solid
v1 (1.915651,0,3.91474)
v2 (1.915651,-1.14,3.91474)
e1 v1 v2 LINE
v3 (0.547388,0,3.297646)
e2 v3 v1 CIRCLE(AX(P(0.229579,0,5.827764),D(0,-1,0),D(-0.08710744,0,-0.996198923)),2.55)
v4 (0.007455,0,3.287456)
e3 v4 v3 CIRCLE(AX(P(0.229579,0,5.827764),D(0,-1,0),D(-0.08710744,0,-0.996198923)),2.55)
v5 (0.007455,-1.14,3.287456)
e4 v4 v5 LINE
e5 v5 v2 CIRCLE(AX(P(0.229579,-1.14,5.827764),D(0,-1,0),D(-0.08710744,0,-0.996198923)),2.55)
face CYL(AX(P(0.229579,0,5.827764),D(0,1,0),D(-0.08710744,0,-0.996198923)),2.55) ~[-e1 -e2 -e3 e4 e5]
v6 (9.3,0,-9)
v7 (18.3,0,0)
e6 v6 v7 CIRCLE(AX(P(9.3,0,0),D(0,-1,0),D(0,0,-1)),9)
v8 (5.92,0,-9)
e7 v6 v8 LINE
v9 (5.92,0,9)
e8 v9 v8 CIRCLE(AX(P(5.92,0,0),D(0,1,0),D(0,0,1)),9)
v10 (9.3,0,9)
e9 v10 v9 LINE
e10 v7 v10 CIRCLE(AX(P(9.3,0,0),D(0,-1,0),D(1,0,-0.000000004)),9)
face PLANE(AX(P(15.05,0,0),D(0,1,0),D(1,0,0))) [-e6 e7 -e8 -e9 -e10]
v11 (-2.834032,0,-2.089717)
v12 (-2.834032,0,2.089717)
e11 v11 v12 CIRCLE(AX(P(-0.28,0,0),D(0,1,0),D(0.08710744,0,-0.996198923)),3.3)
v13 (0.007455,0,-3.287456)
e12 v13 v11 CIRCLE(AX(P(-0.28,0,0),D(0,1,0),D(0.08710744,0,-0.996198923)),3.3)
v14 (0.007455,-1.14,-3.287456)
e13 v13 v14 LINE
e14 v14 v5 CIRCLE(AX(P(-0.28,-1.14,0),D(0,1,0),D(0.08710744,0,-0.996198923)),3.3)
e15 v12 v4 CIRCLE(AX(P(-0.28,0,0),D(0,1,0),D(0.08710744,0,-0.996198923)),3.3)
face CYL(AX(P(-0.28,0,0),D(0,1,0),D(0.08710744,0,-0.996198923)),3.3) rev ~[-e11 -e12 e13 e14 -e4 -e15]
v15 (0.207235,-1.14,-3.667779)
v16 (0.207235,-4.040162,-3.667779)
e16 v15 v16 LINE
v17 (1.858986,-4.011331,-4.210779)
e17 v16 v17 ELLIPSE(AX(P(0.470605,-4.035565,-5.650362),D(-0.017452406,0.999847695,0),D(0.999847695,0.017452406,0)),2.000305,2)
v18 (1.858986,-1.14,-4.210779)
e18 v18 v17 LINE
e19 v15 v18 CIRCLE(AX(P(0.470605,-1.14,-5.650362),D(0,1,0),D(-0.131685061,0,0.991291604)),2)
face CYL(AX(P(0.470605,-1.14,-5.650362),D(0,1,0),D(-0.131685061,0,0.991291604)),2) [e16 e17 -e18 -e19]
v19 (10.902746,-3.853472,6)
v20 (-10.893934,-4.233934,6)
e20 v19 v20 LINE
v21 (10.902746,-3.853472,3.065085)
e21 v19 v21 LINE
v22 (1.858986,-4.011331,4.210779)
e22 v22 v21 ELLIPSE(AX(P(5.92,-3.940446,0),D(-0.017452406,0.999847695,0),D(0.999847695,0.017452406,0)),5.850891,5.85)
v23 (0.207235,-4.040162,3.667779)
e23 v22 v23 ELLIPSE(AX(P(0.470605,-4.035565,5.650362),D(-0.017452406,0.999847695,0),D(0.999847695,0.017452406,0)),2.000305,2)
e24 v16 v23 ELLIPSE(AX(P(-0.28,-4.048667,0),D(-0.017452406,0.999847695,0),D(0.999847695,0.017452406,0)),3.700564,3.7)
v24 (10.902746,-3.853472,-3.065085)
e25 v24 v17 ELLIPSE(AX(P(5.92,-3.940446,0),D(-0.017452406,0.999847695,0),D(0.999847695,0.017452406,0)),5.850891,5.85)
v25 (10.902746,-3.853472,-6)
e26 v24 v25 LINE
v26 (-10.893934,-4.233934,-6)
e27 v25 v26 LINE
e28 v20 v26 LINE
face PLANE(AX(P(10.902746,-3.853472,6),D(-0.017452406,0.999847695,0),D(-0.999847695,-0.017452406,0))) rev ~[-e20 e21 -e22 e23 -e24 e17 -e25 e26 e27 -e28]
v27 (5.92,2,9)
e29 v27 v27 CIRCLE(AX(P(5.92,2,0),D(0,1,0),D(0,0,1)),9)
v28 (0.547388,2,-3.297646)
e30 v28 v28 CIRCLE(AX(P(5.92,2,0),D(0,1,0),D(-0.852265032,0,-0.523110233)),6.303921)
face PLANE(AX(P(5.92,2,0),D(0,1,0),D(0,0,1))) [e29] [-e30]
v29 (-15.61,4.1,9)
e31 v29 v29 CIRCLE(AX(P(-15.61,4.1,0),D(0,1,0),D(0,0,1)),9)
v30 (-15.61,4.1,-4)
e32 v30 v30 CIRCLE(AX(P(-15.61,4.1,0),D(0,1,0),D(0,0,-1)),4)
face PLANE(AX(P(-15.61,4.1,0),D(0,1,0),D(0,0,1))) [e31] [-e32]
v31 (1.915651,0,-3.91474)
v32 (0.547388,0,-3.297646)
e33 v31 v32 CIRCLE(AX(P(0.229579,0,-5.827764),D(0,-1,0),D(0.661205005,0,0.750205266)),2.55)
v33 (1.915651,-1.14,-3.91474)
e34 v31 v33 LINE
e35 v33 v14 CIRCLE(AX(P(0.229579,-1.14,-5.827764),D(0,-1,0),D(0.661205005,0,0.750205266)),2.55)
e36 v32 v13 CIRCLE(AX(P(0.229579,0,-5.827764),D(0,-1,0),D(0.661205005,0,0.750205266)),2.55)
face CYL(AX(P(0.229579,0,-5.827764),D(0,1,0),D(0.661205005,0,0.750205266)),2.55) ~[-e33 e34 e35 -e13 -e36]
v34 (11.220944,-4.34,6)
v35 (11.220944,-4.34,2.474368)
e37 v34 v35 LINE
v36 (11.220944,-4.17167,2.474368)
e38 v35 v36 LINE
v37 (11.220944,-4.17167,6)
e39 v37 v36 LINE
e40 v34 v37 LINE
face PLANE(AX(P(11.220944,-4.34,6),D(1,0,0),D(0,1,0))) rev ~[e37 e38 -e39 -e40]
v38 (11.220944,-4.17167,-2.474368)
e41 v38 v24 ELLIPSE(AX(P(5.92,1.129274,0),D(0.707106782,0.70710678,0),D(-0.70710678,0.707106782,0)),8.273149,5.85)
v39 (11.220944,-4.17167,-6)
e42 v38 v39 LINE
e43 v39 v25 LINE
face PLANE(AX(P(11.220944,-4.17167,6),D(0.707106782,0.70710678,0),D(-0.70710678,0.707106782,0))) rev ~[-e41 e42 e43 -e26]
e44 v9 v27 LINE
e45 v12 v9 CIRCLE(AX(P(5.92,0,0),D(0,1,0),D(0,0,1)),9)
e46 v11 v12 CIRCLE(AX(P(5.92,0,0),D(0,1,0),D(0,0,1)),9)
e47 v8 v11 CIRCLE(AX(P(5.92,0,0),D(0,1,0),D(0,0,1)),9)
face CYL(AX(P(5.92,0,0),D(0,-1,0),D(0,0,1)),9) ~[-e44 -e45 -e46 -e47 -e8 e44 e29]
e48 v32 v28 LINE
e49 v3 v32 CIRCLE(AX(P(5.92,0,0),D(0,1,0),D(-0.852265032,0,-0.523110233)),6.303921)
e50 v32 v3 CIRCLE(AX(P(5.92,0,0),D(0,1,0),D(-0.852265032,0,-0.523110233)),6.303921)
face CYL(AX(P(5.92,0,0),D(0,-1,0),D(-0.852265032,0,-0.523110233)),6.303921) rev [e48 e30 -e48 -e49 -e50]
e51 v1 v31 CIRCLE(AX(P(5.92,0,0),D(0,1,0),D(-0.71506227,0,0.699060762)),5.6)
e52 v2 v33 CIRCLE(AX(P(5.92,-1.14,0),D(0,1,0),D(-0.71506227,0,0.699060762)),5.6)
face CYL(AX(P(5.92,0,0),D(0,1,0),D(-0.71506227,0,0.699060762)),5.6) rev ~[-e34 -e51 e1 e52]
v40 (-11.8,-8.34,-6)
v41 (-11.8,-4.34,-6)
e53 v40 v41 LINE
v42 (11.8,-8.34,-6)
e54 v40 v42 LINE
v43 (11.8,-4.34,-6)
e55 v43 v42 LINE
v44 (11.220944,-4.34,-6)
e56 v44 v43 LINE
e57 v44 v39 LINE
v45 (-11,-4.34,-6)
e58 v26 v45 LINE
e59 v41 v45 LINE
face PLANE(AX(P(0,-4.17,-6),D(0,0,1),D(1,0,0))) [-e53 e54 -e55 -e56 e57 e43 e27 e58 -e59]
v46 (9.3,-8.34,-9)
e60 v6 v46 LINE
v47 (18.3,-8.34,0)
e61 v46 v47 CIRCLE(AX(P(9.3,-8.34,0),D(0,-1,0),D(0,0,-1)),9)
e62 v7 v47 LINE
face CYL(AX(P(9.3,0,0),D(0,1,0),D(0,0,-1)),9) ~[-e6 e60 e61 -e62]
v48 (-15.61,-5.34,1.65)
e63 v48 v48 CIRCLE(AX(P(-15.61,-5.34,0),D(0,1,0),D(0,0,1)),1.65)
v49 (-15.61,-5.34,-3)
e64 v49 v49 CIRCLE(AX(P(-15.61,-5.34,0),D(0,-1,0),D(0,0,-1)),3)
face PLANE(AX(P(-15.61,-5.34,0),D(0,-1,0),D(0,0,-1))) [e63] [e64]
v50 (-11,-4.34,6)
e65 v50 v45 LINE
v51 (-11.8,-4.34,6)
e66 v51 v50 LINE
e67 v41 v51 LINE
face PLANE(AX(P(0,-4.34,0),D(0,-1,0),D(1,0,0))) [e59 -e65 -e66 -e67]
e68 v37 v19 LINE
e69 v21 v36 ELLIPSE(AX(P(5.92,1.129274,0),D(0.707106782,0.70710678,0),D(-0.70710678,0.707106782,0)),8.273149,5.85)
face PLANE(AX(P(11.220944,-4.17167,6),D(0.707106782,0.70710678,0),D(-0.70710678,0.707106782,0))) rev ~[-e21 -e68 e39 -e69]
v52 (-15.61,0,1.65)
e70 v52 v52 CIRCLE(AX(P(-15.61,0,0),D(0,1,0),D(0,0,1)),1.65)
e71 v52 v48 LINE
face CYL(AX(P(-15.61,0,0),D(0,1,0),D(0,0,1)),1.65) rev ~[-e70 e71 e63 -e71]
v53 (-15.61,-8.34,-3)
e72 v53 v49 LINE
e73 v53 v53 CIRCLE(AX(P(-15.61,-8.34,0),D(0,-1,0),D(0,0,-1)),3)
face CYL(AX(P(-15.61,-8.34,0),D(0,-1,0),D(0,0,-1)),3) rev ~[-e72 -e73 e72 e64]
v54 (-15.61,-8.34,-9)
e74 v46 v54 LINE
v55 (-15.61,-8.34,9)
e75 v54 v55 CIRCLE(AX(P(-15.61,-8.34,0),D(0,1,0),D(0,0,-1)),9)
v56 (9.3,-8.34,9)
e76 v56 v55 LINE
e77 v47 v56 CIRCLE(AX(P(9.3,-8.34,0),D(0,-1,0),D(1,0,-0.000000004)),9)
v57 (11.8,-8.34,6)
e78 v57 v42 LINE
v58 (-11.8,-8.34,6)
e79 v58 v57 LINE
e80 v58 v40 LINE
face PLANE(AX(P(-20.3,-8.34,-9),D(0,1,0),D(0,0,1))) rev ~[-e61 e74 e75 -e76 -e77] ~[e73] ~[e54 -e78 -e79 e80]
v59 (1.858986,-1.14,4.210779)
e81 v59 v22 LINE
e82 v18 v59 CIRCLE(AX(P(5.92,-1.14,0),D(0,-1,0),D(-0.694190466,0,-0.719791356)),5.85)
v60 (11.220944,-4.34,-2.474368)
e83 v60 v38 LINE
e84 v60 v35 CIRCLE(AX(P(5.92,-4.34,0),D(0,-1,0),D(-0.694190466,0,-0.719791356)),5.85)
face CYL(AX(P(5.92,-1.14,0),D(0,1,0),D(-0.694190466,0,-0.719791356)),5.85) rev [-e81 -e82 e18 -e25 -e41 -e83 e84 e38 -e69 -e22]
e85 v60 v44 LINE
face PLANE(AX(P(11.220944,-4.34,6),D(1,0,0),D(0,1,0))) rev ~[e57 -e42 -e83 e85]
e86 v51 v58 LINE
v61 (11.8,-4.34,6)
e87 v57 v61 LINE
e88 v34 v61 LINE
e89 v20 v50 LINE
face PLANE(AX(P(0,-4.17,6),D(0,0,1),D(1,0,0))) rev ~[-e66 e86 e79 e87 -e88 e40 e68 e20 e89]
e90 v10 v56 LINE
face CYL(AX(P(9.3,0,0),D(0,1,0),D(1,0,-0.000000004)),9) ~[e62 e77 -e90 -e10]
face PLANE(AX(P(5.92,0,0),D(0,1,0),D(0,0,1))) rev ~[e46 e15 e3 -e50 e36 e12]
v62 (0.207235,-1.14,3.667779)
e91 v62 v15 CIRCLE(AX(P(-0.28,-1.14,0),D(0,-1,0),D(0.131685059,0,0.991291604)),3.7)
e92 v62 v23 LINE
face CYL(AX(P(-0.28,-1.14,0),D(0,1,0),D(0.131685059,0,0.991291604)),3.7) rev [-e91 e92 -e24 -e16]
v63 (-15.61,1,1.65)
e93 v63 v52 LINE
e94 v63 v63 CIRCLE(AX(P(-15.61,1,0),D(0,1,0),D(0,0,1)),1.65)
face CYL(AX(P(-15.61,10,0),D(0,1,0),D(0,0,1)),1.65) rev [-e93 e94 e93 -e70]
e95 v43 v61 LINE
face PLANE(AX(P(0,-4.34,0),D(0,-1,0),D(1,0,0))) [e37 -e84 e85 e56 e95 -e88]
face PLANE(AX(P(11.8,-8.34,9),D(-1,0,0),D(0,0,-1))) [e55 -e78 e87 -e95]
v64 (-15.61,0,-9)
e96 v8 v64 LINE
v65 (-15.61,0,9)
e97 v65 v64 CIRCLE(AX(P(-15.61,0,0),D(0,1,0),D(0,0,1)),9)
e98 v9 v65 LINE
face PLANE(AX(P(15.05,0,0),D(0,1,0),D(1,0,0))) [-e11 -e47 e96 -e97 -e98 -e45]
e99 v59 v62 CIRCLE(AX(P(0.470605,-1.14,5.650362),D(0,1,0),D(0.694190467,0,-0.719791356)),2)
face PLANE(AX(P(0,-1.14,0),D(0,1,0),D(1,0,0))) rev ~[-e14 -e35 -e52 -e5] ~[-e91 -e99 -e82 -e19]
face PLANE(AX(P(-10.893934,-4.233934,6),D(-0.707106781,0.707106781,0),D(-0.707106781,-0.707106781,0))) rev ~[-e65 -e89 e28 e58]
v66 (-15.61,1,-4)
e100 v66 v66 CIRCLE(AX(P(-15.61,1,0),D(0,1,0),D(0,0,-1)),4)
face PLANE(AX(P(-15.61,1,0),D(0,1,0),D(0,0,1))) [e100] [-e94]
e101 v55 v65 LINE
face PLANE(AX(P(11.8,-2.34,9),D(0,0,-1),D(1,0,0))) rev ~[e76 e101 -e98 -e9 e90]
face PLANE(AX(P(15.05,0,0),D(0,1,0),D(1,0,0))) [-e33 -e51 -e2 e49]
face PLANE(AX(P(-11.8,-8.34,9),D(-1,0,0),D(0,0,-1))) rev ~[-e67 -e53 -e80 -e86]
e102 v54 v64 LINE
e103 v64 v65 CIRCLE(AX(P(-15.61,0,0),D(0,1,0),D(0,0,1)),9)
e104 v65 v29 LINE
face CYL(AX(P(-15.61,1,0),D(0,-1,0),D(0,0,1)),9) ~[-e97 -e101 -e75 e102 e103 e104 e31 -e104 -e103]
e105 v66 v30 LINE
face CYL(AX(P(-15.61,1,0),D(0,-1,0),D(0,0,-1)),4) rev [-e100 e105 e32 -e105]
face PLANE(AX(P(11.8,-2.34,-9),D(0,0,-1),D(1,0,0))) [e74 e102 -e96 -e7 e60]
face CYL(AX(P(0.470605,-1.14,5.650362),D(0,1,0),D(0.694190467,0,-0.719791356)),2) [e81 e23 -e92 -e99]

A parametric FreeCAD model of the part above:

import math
import FreeCAD as App
import Part
import Sketcher

V = App.Vector
Q = App.Units.Quantity


def add_polygon(sketch, points):
    """Adds a closed chain of lines whose ends are joined by coincident constraints."""
    first, n = sketch.GeometryCount, len(points)
    for a, b in zip(points, points[1:] + points[:1]):
        sketch.addGeometry(Part.LineSegment(App.Vector(*a, 0), App.Vector(*b, 0)), False)
    for i in range(n):
        sketch.addConstraint(Sketcher.Constraint("Coincident", first + i, 2, first + (i + 1) % n, 1))

doc = App.newDocument("Part")
params = doc.addObject("Spreadsheet::Sheet", "Params")
for row, (alias, value) in enumerate([
    ("sketch1_radius", "3.3 mm"),
    ("sketch1_radius2", "5.6 mm"),
    ("sketch1_height", "12 mm"),
    ("sketch1_radius3", "2.55 mm"),
    ("sketch1_width", "23.6 mm"),
    ("pad1_length", "1.14 mm"),
    ("sketch2_radius", "2 mm"),
    ("sketch2_radius2", "3.7 mm"),
    ("sketch2_height", "12 mm"),
    ("sketch2_radius3", "5.85 mm"),
    ("sketch2_width", "23.6 mm"),
    ("pad2_length", "3.2 mm"),
    ("sketch3_length", "21.8 mm"),
    ("sketch3_length2", "0.15 mm"),
    ("sketch3_length3", "0.45 mm"),
    ("sketch4_width", "23.6 mm"),
    ("sketch4_height", "8.34 mm"),
    ("pad3_length", "3 mm"),
    ("sketch5_width", "23.6 mm"),
    ("sketch5_height", "8.34 mm"),
    ("pad4_length", "3 mm"),
    ("sketch6_height", "18 mm"),
    ("sketch6_width", "4.5 mm"),
    ("pad5_length", "6 mm"),
    ("sketch7_width", "6 mm"),
    ("sketch7_height", "18 mm"),
    ("pad6_length", "4 mm"),
    ("sketch8_height", "18 mm"),
    ("sketch8_width", "8.5 mm"),
    ("pad7_length", "2.34 mm"),
    ("sketch9_width", "6 mm"),
    ("sketch9_height", "18 mm"),
    ("pad8_length", "2 mm"),
    ("sketch10_height", "18 mm"),
    ("sketch10_width", "8.34 mm"),
    ("pad9_length", "8 mm"),
    ("sketch11_height", "18 mm"),
    ("sketch11_width", "6.5 mm"),
    ("pad10_length", "2.34 mm"),
    ("sketch12_diameter", "3.3 mm"),
    ("pocket2_length", "8.34 mm"),
    ("sketch13_diameter", "6 mm"),
    ("pocket3_length", "3 mm"),
    ("sketch14_diameter", "18 mm"),
    ("pad11_length", "2 mm"),
    ("sketch15_diameter", "18 mm"),
    ("pad12_length", "1 mm"),
    ("sketch16_diameter", "3.3 mm"),
    ("pocket4_length", "10 mm"),
    ("sketch17_radius", "9 mm"),
    ("sketch17_width", "12.69 mm"),
    ("pocket5_length", "8.34 mm"),
    ("sketch18_radius", "9 mm"),
    ("pocket6_length", "8.34 mm"),
    ("sketch19_diameter", "18 mm"),
    ("sketch19_diameter2", "8 mm"),
    ("pad13_length", "3.1 mm"),
], start=1):
    params.set(f"A{row}", alias)
    params.set(f"B{row}", "=" + value)
    params.setAlias(f"B{row}", alias)

body = doc.addObject("PartDesign::Body", "Body")

# Sketch on XZ plane
sketch1 = doc.addObject("Sketcher::SketchObject", "Sketch")
body.addObject(sketch1)
sketch1.AttachmentSupport = (doc.XZ_Plane, [""])
sketch1.MapMode = "FlatFace"
add_polygon(sketch1, [(-11.8, -6), (-11.8, 6), (11.8, 6), (11.8, -6)])  # lines 0-3
sketch1.addGeometry(Part.ArcOfCircle(Part.Circle(V(-0.3, 0, 0), V(0, 0, 1), 3.3), math.radians(85), math.radians(275)), False)  # 4
sketch1.addGeometry(Part.ArcOfCircle(Part.Circle(V(0.2, -5.8, 0), V(0, 0, 1), 2.5), math.radians(49), math.radians(95)), False)  # 5
sketch1.addGeometry(Part.ArcOfCircle(Part.Circle(V(5.9, 0, 0), V(0, 0, 1), 5.6), math.radians(-136), math.radians(136)), False)  # 6
sketch1.addGeometry(Part.ArcOfCircle(Part.Circle(V(0.2, 5.8, 0), V(0, 0, 1), 2.5), math.radians(-95), math.radians(-49)), False)  # 7
sketch1.addConstraint([
    Sketcher.Constraint("Tangent", 4, 2, 5, 2),
    Sketcher.Constraint("Coincident", 5, 1, 6, 1),
    Sketcher.Constraint("Coincident", 6, 2, 7, 2),
    Sketcher.Constraint("Tangent", 7, 1, 4, 1),
    Sketcher.Constraint("Vertical", 0),
    Sketcher.Constraint("Horizontal", 1),
    Sketcher.Constraint("Vertical", 2),
    Sketcher.Constraint("Horizontal", 3),
    Sketcher.Constraint("Equal", 5, 7),
    Sketcher.Constraint("Symmetric", 0, 2, 2, 2, -1, 1),
    Sketcher.Constraint("Symmetric", 5, 3, 7, 3, -1),
    Sketcher.Constraint("PointOnObject", 6, 3, -1),
    Sketcher.Constraint("Radius", 4, Q("3.3 mm")),
    Sketcher.Constraint("Radius", 6, Q("5.6 mm")),
    Sketcher.Constraint("DistanceY", 0, 1, 0, 2, Q("12 mm")),
    Sketcher.Constraint("Radius", 5, Q("2.55 mm")),
    Sketcher.Constraint("DistanceX", 1, 1, 1, 2, Q("23.6 mm")),
    Sketcher.Constraint("DistanceX", 4, 3, 6, 3, Q("6.2 mm")),
    Sketcher.Constraint("DistanceX", 4, 3, -1, 1, Q("0.28 mm")),
    Sketcher.Constraint("DistanceX", -1, 1, 5, 3, Q("0.229579 mm")),
])
sketch1.setExpression("Constraints[16]", "Params.sketch1_radius")
sketch1.setExpression("Constraints[17]", "Params.sketch1_radius2")
sketch1.setExpression("Constraints[18]", "Params.sketch1_height")
sketch1.setExpression("Constraints[19]", "Params.sketch1_radius3")
sketch1.setExpression("Constraints[20]", "Params.sketch1_width")
pad1 = doc.addObject("PartDesign::Pad", "Pad")
body.addObject(pad1)
pad1.Profile = sketch1
pad1.setExpression("Length", "Params.pad1_length")

# Sketch on XZ plane
sketch2 = doc.addObject("Sketcher::SketchObject", "Sketch001")
body.addObject(sketch2)
sketch2.AttachmentSupport = (doc.XZ_Plane, [""])
sketch2.MapMode = "FlatFace"
sketch2.AttachmentOffset = App.Placement(V(0, 0, 1.14), App.Rotation())
add_polygon(sketch2, [(-11.8, 6), (-11.8, -6), (11.8, -6), (11.8, 6)])  # lines 0-3
sketch2.addGeometry(Part.ArcOfCircle(Part.Circle(V(5.9, 0, 0), V(0, 0, 1), 5.8), math.radians(-134), math.radians(134)), False)  # 4
sketch2.addGeometry(Part.ArcOfCircle(Part.Circle(V(0.5, -5.7, 0), V(0, 0, 1), 2), math.radians(46), math.radians(98)), False)  # 5
sketch2.addGeometry(Part.ArcOfCircle(Part.Circle(V(-0.3, 0, 0), V(0, 0, 1), 3.7), math.radians(82), math.radians(278)), False)  # 6
sketch2.addGeometry(Part.ArcOfCircle(Part.Circle(V(0.5, 5.7, 0), V(0, 0, 1), 2), math.radians(-98), math.radians(-46)), False)  # 7
sketch2.addConstraint([
    Sketcher.Constraint("Tangent", 4, 1, 5, 1),
    Sketcher.Constraint("Tangent", 5, 2, 6, 2),
    Sketcher.Constraint("Tangent", 6, 1, 7, 1),
    Sketcher.Constraint("Tangent", 7, 2, 4, 2),
    Sketcher.Constraint("Vertical", 0),
    Sketcher.Constraint("Horizontal", 1),
    Sketcher.Constraint("Vertical", 2),
    Sketcher.Constraint("Horizontal", 3),
    Sketcher.Constraint("Equal", 5, 7),
    Sketcher.Constraint("Symmetric", 0, 2, 2, 2, -1, 1),
    Sketcher.Constraint("Symmetric", 5, 3, 7, 3, -1),
    Sketcher.Constraint("Radius", 5, Q("2 mm")),
    Sketcher.Constraint("Radius", 6, Q("3.7 mm")),
    Sketcher.Constraint("DistanceY", 0, 2, 0, 1, Q("12 mm")),
    Sketcher.Constraint("Radius", 4, Q("5.85 mm")),
    Sketcher.Constraint("DistanceX", 1, 1, 1, 2, Q("23.6 mm")),
    Sketcher.Constraint("DistanceX", 6, 3, 4, 3, Q("6.2 mm")),
    Sketcher.Constraint("DistanceX", -1, 1, 4, 3, Q("5.92 mm")),
])
sketch2.setExpression("Constraints[15]", "Params.sketch2_radius")
sketch2.setExpression("Constraints[16]", "Params.sketch2_radius2")
sketch2.setExpression("Constraints[17]", "Params.sketch2_height")
sketch2.setExpression("Constraints[18]", "Params.sketch2_radius3")
sketch2.setExpression("Constraints[19]", "Params.sketch2_width")
pad2 = doc.addObject("PartDesign::Pad", "Pad001")
body.addObject(pad2)
pad2.Profile = sketch2
pad2.setExpression("Length", "Params.pad2_length")

# Sketch on XY plane
sketch3 = doc.addObject("Sketcher::SketchObject", "Sketch002")
body.addObject(sketch3)
sketch3.AttachmentSupport = (doc.XY_Plane, [""])
sketch3.MapMode = "FlatFace"
sketch3.AttachmentOffset = App.Placement(V(0, 0, 6), App.Rotation())
add_polygon(sketch3, [(-10.89, -4.23), (-11, -4.34), (11.22, -4.34), (11.22, -4.17), (10.9, -3.85)])  # lines 0-4
sketch3.addConstraint([
    Sketcher.Constraint("Horizontal", 1),
    Sketcher.Constraint("Vertical", 2),
    Sketcher.Constraint("Perpendicular", 0, 3),
    Sketcher.Constraint("Angle", 0, Q("-135 deg")),
    Sketcher.Constraint("Angle", 4, Q("-179 deg")),
    Sketcher.Constraint("DistanceX", 0, 2, -1, 1, Q("11 mm")),
    Sketcher.Constraint("Distance", 4, Q("21.8 mm")),
    Sketcher.Constraint("Distance", 0, Q("0.15 mm")),
    Sketcher.Constraint("Distance", 3, Q("0.45 mm")),
    Sketcher.Constraint("DistanceY", 0, 2, -1, 1, Q("4.34 mm")),
])
sketch3.setExpression("Constraints[11]", "Params.sketch3_length")
sketch3.setExpression("Constraints[12]", "Params.sketch3_length2")
sketch3.setExpression("Constraints[13]", "Params.sketch3_length3")
pocket1 = doc.addObject("PartDesign::Pocket", "Pocket")
body.addObject(pocket1)
pocket1.Profile = sketch3
pocket1.Type = "ThroughAll"

# Sketch on XY plane
sketch4 = doc.addObject("Sketcher::SketchObject", "Sketch003")
body.addObject(sketch4)
sketch4.AttachmentSupport = (doc.XY_Plane, [""])
sketch4.MapMode = "FlatFace"
sketch4.AttachmentOffset = App.Placement(V(0, 0, 6), App.Rotation())
add_polygon(sketch4, [(-12, -8), (12, -8), (12, 0), (-12, 0)])  # lines 0-3
sketch4.addConstraint([
    Sketcher.Constraint("Horizontal", 0),
    Sketcher.Constraint("Vertical", 1),
    Sketcher.Constraint("Horizontal", 2),
    Sketcher.Constraint("Vertical", 3),
    Sketcher.Constraint("Symmetric", 1, 2, 2, 2, -1, 1),
    Sketcher.Constraint("DistanceX", 0, 1, 0, 2, Q("23.6 mm")),
    Sketcher.Constraint("DistanceY", 1, 1, 1, 2, Q("8.34 mm")),
])
sketch4.setExpression("Constraints[9]", "Params.sketch4_width")
sketch4.setExpression("Constraints[10]", "Params.sketch4_height")
pad3 = doc.addObject("PartDesign::Pad", "Pad002")
body.addObject(pad3)
pad3.Profile = sketch4
pad3.setExpression("Length", "Params.pad3_length")

# Sketch on XY plane
sketch5 = doc.addObject("Sketcher::SketchObject", "Sketch004")
body.addObject(sketch5)
sketch5.AttachmentSupport = (doc.XY_Plane, [""])
sketch5.MapMode = "FlatFace"
sketch5.AttachmentOffset = App.Placement(V(0, 0, -6), App.Rotation())
add_polygon(sketch5, [(12, -8), (-12, -8), (-12, 0), (12, 0)])  # lines 0-3
sketch5.addConstraint([
    Sketcher.Constraint("Horizontal", 0),
    Sketcher.Constraint("Vertical", 1),
    Sketcher.Constraint("Horizontal", 2),
    Sketcher.Constraint("Vertical", 3),
    Sketcher.Constraint("Symmetric", 1, 2, 2, 2, -1, 1),
    Sketcher.Constraint("DistanceX", 0, 2, 0, 1, Q("23.6 mm")),
    Sketcher.Constraint("DistanceY", 1, 1, 1, 2, Q("8.34 mm")),
])
sketch5.setExpression("Constraints[9]", "Params.sketch5_width")
sketch5.setExpression("Constraints[10]", "Params.sketch5_height")
pad4 = doc.addObject("PartDesign::Pad", "Pad003")
body.addObject(pad4)
pad4.Profile = sketch5
pad4.setExpression("Length", "Params.pad4_length")
pad4.Reversed = True

# Sketch on XZ plane
sketch6 = doc.addObject("Sketcher::SketchObject", "Sketch005")
body.addObject(sketch6)
sketch6.AttachmentSupport = (doc.XZ_Plane, [""])
sketch6.MapMode = "FlatFace"
sketch6.AttachmentOffset = App.Placement(V(0, 0, 8.34), App.Rotation())
add_polygon(sketch6, [(11.8, -9), (11.8, 9), (16.3, 9), (16.3, -9)])  # lines 0-3
add_polygon(sketch6, [(-16.3, -9), (-16.3, 9), (-11.8, 9), (-11.8, -9)])  # lines 4-7
sketch6.addConstraint([
    Sketcher.Constraint("Vertical", 0),
    Sketcher.Constraint("Horizontal", 1),
    Sketcher.Constraint("Vertical", 2),
    Sketcher.Constraint("Horizontal", 3),
    Sketcher.Constraint("Vertical", 4),
    Sketcher.Constraint("Horizontal", 5),
    Sketcher.Constraint("Vertical", 6),
    Sketcher.Constraint("Horizontal", 7),
    Sketcher.Constraint("Symmetric", 2, 2, 4, 2, -1, 1),
    Sketcher.Constraint("Symmetric", 0, 2, 6, 2, -1, 1),
    Sketcher.Constraint("Horizontal", 1, 2, 4, 2),
    Sketcher.Constraint("DistanceY", 0, 1, 0, 2, Q("18 mm")),
    Sketcher.Constraint("DistanceX", 1, 1, 1, 2, Q("4.5 mm")),
    Sketcher.Constraint("DistanceX", -1, 1, 0, 2, Q("11.8 mm")),
])
sketch6.setExpression("Constraints[19]", "Params.sketch6_height")
sketch6.setExpression("Constraints[20]", "Params.sketch6_width")
pad5 = doc.addObject("PartDesign::Pad", "Pad004")
body.addObject(pad5)
pad5.Profile = sketch6
pad5.setExpression("Length", "Params.pad5_length")
pad5.Reversed = True

# Sketch on YZ plane
sketch7 = doc.addObject("Sketcher::SketchObject", "Sketch006")
body.addObject(sketch7)
sketch7.AttachmentSupport = (doc.YZ_Plane, [""])
sketch7.MapMode = "FlatFace"
sketch7.AttachmentOffset = App.Placement(V(0, 0, -16.3), App.Rotation())
add_polygon(sketch7, [(-2, -9), (-8, -9), (-8, 9), (-2, 9)])  # lines 0-3
sketch7.addConstraint([
    Sketcher.Constraint("Horizontal", 0),
    Sketcher.Constraint("Vertical", 1),
    Sketcher.Constraint("Horizontal", 2),
    Sketcher.Constraint("Vertical", 3),
    Sketcher.Constraint("DistanceX", 0, 2, 0, 1, Q("6 mm")),
    Sketcher.Constraint("DistanceY", 1, 1, 1, 2, Q("18 mm")),
    Sketcher.Constraint("DistanceY", 0, 2, -1, 1, Q("9 mm")),
    Sketcher.Constraint("DistanceX", 0, 2, -1, 1, Q("8.34 mm")),
])
sketch7.setExpression("Constraints[8]", "Params.sketch7_width")
sketch7.setExpression("Constraints[9]", "Params.sketch7_height")
pad6 = doc.addObject("PartDesign::Pad", "Pad005")
body.addObject(pad6)
pad6.Profile = sketch7
pad6.setExpression("Length", "Params.pad6_length")
pad6.Reversed = True

# Sketch on XZ plane
sketch8 = doc.addObject("Sketcher::SketchObject", "Sketch007")
body.addObject(sketch8)
sketch8.AttachmentSupport = (doc.XZ_Plane, [""])
sketch8.MapMode = "FlatFace"
sketch8.AttachmentOffset = App.Placement(V(0, 0, 2.34), App.Rotation())
add_polygon(sketch8, [(-20, -9), (-20, 9), (-12, 9), (-12, -9)])  # lines 0-3
sketch8.addConstraint([
    Sketcher.Constraint("Vertical", 0),
    Sketcher.Constraint("Horizontal", 1),
    Sketcher.Constraint("Vertical", 2),
    Sketcher.Constraint("Horizontal", 3),
    Sketcher.Constraint("DistanceY", 0, 1, 0, 2, Q("18 mm")),
    Sketcher.Constraint("DistanceX", 1, 1, 1, 2, Q("8.5 mm")),
    Sketcher.Constraint("DistanceY", -1, 1, 0, 2, Q("9 mm")),
    Sketcher.Constraint("DistanceX", 0, 2, -1, 1, Q("20.3 mm")),
])
sketch8.setExpression("Constraints[8]", "Params.sketch8_height")
sketch8.setExpression("Constraints[9]", "Params.sketch8_width")
pad7 = doc.addObject("PartDesign::Pad", "Pad006")
body.addObject(pad7)
pad7.Profile = sketch8
pad7.setExpression("Length", "Params.pad7_length")
pad7.Reversed = True

# Sketch on YZ plane
sketch9 = doc.addObject("Sketcher::SketchObject", "Sketch008")
body.addObject(sketch9)
sketch9.AttachmentSupport = (doc.YZ_Plane, [""])
sketch9.MapMode = "FlatFace"
sketch9.AttachmentOffset = App.Placement(V(0, 0, 16.3), App.Rotation())
add_polygon(sketch9, [(-2, 9), (-8, 9), (-8, -9), (-2, -9)])  # lines 0-3
sketch9.addConstraint([
    Sketcher.Constraint("Horizontal", 0),
    Sketcher.Constraint("Vertical", 1),
    Sketcher.Constraint("Horizontal", 2),
    Sketcher.Constraint("Vertical", 3),
    Sketcher.Constraint("DistanceX", 0, 2, 0, 1, Q("6 mm")),
    Sketcher.Constraint("DistanceY", 1, 2, 1, 1, Q("18 mm")),
    Sketcher.Constraint("DistanceY", -1, 1, 0, 2, Q("9 mm")),
    Sketcher.Constraint("DistanceX", 0, 2, -1, 1, Q("8.34 mm")),
])
sketch9.setExpression("Constraints[8]", "Params.sketch9_width")
sketch9.setExpression("Constraints[9]", "Params.sketch9_height")
pad8 = doc.addObject("PartDesign::Pad", "Pad007")
body.addObject(pad8)
pad8.Profile = sketch9
pad8.setExpression("Length", "Params.pad8_length")

# Sketch on YZ plane
sketch10 = doc.addObject("Sketcher::SketchObject", "Sketch009")
body.addObject(sketch10)
sketch10.AttachmentSupport = (doc.YZ_Plane, [""])
sketch10.MapMode = "FlatFace"
sketch10.AttachmentOffset = App.Placement(V(0, 0, -20.3), App.Rotation())
add_polygon(sketch10, [(0, -9), (-8, -9), (-8, 9), (0, 9)])  # lines 0-3
sketch10.addConstraint([
    Sketcher.Constraint("Horizontal", 0),
    Sketcher.Constraint("Vertical", 1),
    Sketcher.Constraint("Horizontal", 2),
    Sketcher.Constraint("Vertical", 3),
    Sketcher.Constraint("Symmetric", 2, 2, 3, 2, -1, 1),
    Sketcher.Constraint("DistanceY", 1, 1, 1, 2, Q("18 mm")),
    Sketcher.Constraint("DistanceX", 0, 2, 0, 1, Q("8.34 mm")),
])
sketch10.setExpression("Constraints[9]", "Params.sketch10_height")
sketch10.setExpression("Constraints[10]", "Params.sketch10_width")
pad9 = doc.addObject("PartDesign::Pad", "Pad008")
body.addObject(pad9)
pad9.Profile = sketch10
pad9.setExpression("Length", "Params.pad9_length")
pad9.Reversed = True

# Sketch on XZ plane
sketch11 = doc.addObject("Sketcher::SketchObject", "Sketch010")
body.addObject(sketch11)
sketch11.AttachmentSupport = (doc.XZ_Plane, [""])
sketch11.MapMode = "FlatFace"
sketch11.AttachmentOffset = App.Placement(V(0, 0, 2.34), App.Rotation())
add_polygon(sketch11, [(12, -9), (12, 9), (18, 9), (18, -9)])  # lines 0-3
sketch11.addConstraint([
    Sketcher.Constraint("Vertical", 0),
    Sketcher.Constraint("Horizontal", 1),
    Sketcher.Constraint("Vertical", 2),
    Sketcher.Constraint("Horizontal", 3),
    Sketcher.Constraint("DistanceY", 0, 1, 0, 2, Q("18 mm")),
    Sketcher.Constraint("DistanceX", 1, 1, 1, 2, Q("6.5 mm")),
    Sketcher.Constraint("DistanceY", -1, 1, 0, 2, Q("9 mm")),
    Sketcher.Constraint("DistanceX", -1, 1, 0, 2, Q("11.8 mm")),
])
sketch11.setExpression("Constraints[8]", "Params.sketch11_height")
sketch11.setExpression("Constraints[9]", "Params.sketch11_width")
pad10 = doc.addObject("PartDesign::Pad", "Pad009")
body.addObject(pad10)
pad10.Profile = sketch11
pad10.setExpression("Length", "Params.pad10_length")
pad10.Reversed = True

# Sketch on XZ plane
sketch12 = doc.addObject("Sketcher::SketchObject", "Sketch011")
body.addObject(sketch12)
sketch12.AttachmentSupport = (doc.XZ_Plane, [""])
sketch12.MapMode = "FlatFace"
sketch12.addGeometry(Part.Circle(V(-15.6, 0, 0), V(0, 0, 1), 1.6), False)
sketch12.addConstraint([
    Sketcher.Constraint("PointOnObject", 0, 3, -1),
    Sketcher.Constraint("Diameter", 0, Q("3.3 mm")),
    Sketcher.Constraint("DistanceX", 0, 3, -1, 1, Q("15.61 mm")),
])
sketch12.setExpression("Constraints[1]", "Params.sketch12_diameter")
pocket2 = doc.addObject("PartDesign::Pocket", "Pocket001")
body.addObject(pocket2)
pocket2.Profile = sketch12
pocket2.setExpression("Length", "Params.pocket2_length")
pocket2.Reversed = True

# Sketch on XZ plane
sketch13 = doc.addObject("Sketcher::SketchObject", "Sketch012")
body.addObject(sketch13)
sketch13.AttachmentSupport = (doc.XZ_Plane, [""])
sketch13.MapMode = "FlatFace"
sketch13.AttachmentOffset = App.Placement(V(0, 0, 8.34), App.Rotation())
sketch13.addGeometry(Part.Circle(V(-15.6, 0, 0), V(0, 0, 1), 3), False)
sketch13.addConstraint([
    Sketcher.Constraint("PointOnObject", 0, 3, -1),
    Sketcher.Constraint("Diameter", 0, Q("6 mm")),
    Sketcher.Constraint("DistanceX", 0, 3, -1, 1, Q("15.61 mm")),
])
sketch13.setExpression("Constraints[1]", "Params.sketch13_diameter")
pocket3 = doc.addObject("PartDesign::Pocket", "Pocket002")
body.addObject(pocket3)
pocket3.Profile = sketch13
pocket3.setExpression("Length", "Params.pocket3_length")

# Sketch on XZ plane
sketch14 = doc.addObject("Sketcher::SketchObject", "Sketch013")
body.addObject(sketch14)
sketch14.AttachmentSupport = (doc.XZ_Plane, [""])
sketch14.MapMode = "FlatFace"
sketch14.addGeometry([
    Part.Circle(V(6, 0, 0), V(0, 0, 1), 9),
    Part.Circle(V(6, 0, 0), V(0, 0, 1), 6),
], False)
sketch14.addConstraint([
    Sketcher.Constraint("Coincident", 1, 3, 0, 3),
    Sketcher.Constraint("PointOnObject", 0, 3, -1),
    Sketcher.Constraint("Diameter", 0, Q("18 mm")),
    Sketcher.Constraint("DistanceX", -1, 1, 0, 3, Q("5.92 mm")),
    Sketcher.Constraint("Diameter", 1, Q("12.607843 mm")),
])
sketch14.setExpression("Constraints[2]", "Params.sketch14_diameter")
pad11 = doc.addObject("PartDesign::Pad", "Pad010")
body.addObject(pad11)
pad11.Profile = sketch14
pad11.setExpression("Length", "Params.pad11_length")
pad11.Reversed = True

# Sketch on XZ plane
sketch15 = doc.addObject("Sketcher::SketchObject", "Sketch014")
body.addObject(sketch15)
sketch15.AttachmentSupport = (doc.XZ_Plane, [""])
sketch15.MapMode = "FlatFace"
sketch15.addGeometry(Part.Circle(V(-16, 0, 0), V(0, 0, 1), 9), False)
sketch15.addConstraint([
    Sketcher.Constraint("PointOnObject", 0, 3, -1),
    Sketcher.Constraint("Diameter", 0, Q("18 mm")),
    Sketcher.Constraint("DistanceX", 0, 3, -1, 1, Q("15.61 mm")),
])
sketch15.setExpression("Constraints[1]", "Params.sketch15_diameter")
pad12 = doc.addObject("PartDesign::Pad", "Pad011")
body.addObject(pad12)
pad12.Profile = sketch15
pad12.setExpression("Length", "Params.pad12_length")
pad12.Reversed = True

# Sketch on XZ plane
sketch16 = doc.addObject("Sketcher::SketchObject", "Sketch015")
body.addObject(sketch16)
sketch16.AttachmentSupport = (doc.XZ_Plane, [""])
sketch16.MapMode = "FlatFace"
sketch16.AttachmentOffset = App.Placement(V(0, 0, -10), App.Rotation())
sketch16.addGeometry(Part.Circle(V(-15.6, 0, 0), V(0, 0, 1), 1.6), False)
sketch16.addConstraint([
    Sketcher.Constraint("PointOnObject", 0, 3, -1),
    Sketcher.Constraint("Diameter", 0, Q("3.3 mm")),
    Sketcher.Constraint("DistanceX", 0, 3, -1, 1, Q("15.61 mm")),
])
sketch16.setExpression("Constraints[1]", "Params.sketch16_diameter")
pocket4 = doc.addObject("PartDesign::Pocket", "Pocket003")
body.addObject(pocket4)
pocket4.Profile = sketch16
pocket4.setExpression("Length", "Params.pocket4_length")
pocket4.Reversed = True

# Sketch on XZ plane
sketch17 = doc.addObject("Sketcher::SketchObject", "Sketch016")
body.addObject(sketch17)
sketch17.AttachmentSupport = (doc.XZ_Plane, [""])
sketch17.MapMode = "FlatFace"
sketch17.AttachmentOffset = App.Placement(V(0, 0, 8.34), App.Rotation())
sketch17.addGeometry([
    Part.LineSegment(V(-28, 9, 0), V(-16, 9, 0)),
    Part.ArcOfCircle(Part.Circle(V(-16, 0, 0), V(0, 0, 1), 9), math.radians(90), math.radians(270)),
    Part.LineSegment(V(-16, -9, 0), V(-28, -9, 0)),
    Part.LineSegment(V(-28, -9, 0), V(-28, 9, 0)),
], False)
sketch17.addConstraint([
    Sketcher.Constraint("Tangent", 0, 2, 1, 1),
    Sketcher.Constraint("Tangent", 1, 2, 2, 1),
    Sketcher.Constraint("Coincident", 2, 2, 3, 1),
    Sketcher.Constraint("Coincident", 3, 2, 0, 1),
    Sketcher.Constraint("Horizontal", 0),
    Sketcher.Constraint("Horizontal", 2),
    Sketcher.Constraint("Vertical", 3),
    Sketcher.Constraint("PointOnObject", 1, 3, -1),
    Sketcher.Constraint("Radius", 1, Q("9 mm")),
    Sketcher.Constraint("DistanceX", 0, 1, 0, 2, Q("12.69 mm")),
    Sketcher.Constraint("DistanceX", 2, 2, -1, 1, Q("28.3 mm")),
])
sketch17.setExpression("Constraints[8]", "Params.sketch17_radius")
sketch17.setExpression("Constraints[9]", "Params.sketch17_width")
pocket5 = doc.addObject("PartDesign::Pocket", "Pocket004")
body.addObject(pocket5)
pocket5.Profile = sketch17
pocket5.setExpression("Length", "Params.pocket5_length")

# Sketch on XZ plane
sketch18 = doc.addObject("Sketcher::SketchObject", "Sketch017")
body.addObject(sketch18)
sketch18.AttachmentSupport = (doc.XZ_Plane, [""])
sketch18.MapMode = "FlatFace"
sketch18.addGeometry([
    Part.ArcOfCircle(Part.Circle(V(9, 0, 0), V(0, 0, 1), 9), math.radians(-90), math.radians(0)),  # 0
    Part.LineSegment(V(18, 0, 0), V(18, -9, 0)),  # 1
    Part.LineSegment(V(18, -9, 0), V(9, -9, 0)),  # 2
    Part.ArcOfCircle(Part.Circle(V(9, 0, 0), V(0, 0, 1), 9), math.radians(0), math.radians(90)),  # 3
    Part.LineSegment(V(9, 9, 0), V(18, 9, 0)),  # 4
    Part.LineSegment(V(18, 9, 0), V(18, 0, 0)),  # 5
], False)
sketch18.addConstraint([
    Sketcher.Constraint("Tangent", 0, 2, 1, 1),
    Sketcher.Constraint("Coincident", 1, 2, 2, 1),
    Sketcher.Constraint("Tangent", 2, 2, 0, 1),
    Sketcher.Constraint("Tangent", 3, 2, 4, 1),
    Sketcher.Constraint("Coincident", 4, 2, 5, 1),
    Sketcher.Constraint("Tangent", 5, 2, 3, 1),
    Sketcher.Constraint("Vertical", 1),
    Sketcher.Constraint("Horizontal", 2),
    Sketcher.Constraint("Horizontal", 4),
    Sketcher.Constraint("Vertical", 5),
    Sketcher.Constraint("Coincident", 3, 3, 0, 3),
    Sketcher.Constraint("Equal", 0, 3),
    Sketcher.Constraint("PointOnObject", 0, 3, -1),
    Sketcher.Constraint("Radius", 0, Q("9 mm")),
    Sketcher.Constraint("DistanceX", -1, 1, 0, 3, Q("9.3 mm")),
])
sketch18.setExpression("Constraints[13]", "Params.sketch18_radius")
pocket6 = doc.addObject("PartDesign::Pocket", "Pocket005")
body.addObject(pocket6)
pocket6.Profile = sketch18
pocket6.setExpression("Length", "Params.pocket6_length")
pocket6.Reversed = True

# Sketch on XZ plane
sketch19 = doc.addObject("Sketcher::SketchObject", "Sketch018")
body.addObject(sketch19)
sketch19.AttachmentSupport = (doc.XZ_Plane, [""])
sketch19.MapMode = "FlatFace"
sketch19.AttachmentOffset = App.Placement(V(0, 0, -1), App.Rotation())
sketch19.addGeometry([
    Part.Circle(V(-15.6, 0, 0), V(0, 0, 1), 9),
    Part.Circle(V(-15.6, 0, 0), V(0, 0, 1), 4),
], False)
sketch19.addConstraint([
    Sketcher.Constraint("Coincident", 1, 3, 0, 3),
    Sketcher.Constraint("PointOnObject", 0, 3, -1),
    Sketcher.Constraint("Diameter", 0, Q("18 mm")),
    Sketcher.Constraint("Diameter", 1, Q("8 mm")),
    Sketcher.Constraint("DistanceX", 0, 3, -1, 1, Q("15.61 mm")),
])
sketch19.setExpression("Constraints[2]", "Params.sketch19_diameter")
sketch19.setExpression("Constraints[3]", "Params.sketch19_diameter2")
pad13 = doc.addObject("PartDesign::Pad", "Pad012")
body.addObject(pad13)
pad13.Profile = sketch19
pad13.setExpression("Length", "Params.pad13_length")
pad13.Reversed = True

doc.recompute()
